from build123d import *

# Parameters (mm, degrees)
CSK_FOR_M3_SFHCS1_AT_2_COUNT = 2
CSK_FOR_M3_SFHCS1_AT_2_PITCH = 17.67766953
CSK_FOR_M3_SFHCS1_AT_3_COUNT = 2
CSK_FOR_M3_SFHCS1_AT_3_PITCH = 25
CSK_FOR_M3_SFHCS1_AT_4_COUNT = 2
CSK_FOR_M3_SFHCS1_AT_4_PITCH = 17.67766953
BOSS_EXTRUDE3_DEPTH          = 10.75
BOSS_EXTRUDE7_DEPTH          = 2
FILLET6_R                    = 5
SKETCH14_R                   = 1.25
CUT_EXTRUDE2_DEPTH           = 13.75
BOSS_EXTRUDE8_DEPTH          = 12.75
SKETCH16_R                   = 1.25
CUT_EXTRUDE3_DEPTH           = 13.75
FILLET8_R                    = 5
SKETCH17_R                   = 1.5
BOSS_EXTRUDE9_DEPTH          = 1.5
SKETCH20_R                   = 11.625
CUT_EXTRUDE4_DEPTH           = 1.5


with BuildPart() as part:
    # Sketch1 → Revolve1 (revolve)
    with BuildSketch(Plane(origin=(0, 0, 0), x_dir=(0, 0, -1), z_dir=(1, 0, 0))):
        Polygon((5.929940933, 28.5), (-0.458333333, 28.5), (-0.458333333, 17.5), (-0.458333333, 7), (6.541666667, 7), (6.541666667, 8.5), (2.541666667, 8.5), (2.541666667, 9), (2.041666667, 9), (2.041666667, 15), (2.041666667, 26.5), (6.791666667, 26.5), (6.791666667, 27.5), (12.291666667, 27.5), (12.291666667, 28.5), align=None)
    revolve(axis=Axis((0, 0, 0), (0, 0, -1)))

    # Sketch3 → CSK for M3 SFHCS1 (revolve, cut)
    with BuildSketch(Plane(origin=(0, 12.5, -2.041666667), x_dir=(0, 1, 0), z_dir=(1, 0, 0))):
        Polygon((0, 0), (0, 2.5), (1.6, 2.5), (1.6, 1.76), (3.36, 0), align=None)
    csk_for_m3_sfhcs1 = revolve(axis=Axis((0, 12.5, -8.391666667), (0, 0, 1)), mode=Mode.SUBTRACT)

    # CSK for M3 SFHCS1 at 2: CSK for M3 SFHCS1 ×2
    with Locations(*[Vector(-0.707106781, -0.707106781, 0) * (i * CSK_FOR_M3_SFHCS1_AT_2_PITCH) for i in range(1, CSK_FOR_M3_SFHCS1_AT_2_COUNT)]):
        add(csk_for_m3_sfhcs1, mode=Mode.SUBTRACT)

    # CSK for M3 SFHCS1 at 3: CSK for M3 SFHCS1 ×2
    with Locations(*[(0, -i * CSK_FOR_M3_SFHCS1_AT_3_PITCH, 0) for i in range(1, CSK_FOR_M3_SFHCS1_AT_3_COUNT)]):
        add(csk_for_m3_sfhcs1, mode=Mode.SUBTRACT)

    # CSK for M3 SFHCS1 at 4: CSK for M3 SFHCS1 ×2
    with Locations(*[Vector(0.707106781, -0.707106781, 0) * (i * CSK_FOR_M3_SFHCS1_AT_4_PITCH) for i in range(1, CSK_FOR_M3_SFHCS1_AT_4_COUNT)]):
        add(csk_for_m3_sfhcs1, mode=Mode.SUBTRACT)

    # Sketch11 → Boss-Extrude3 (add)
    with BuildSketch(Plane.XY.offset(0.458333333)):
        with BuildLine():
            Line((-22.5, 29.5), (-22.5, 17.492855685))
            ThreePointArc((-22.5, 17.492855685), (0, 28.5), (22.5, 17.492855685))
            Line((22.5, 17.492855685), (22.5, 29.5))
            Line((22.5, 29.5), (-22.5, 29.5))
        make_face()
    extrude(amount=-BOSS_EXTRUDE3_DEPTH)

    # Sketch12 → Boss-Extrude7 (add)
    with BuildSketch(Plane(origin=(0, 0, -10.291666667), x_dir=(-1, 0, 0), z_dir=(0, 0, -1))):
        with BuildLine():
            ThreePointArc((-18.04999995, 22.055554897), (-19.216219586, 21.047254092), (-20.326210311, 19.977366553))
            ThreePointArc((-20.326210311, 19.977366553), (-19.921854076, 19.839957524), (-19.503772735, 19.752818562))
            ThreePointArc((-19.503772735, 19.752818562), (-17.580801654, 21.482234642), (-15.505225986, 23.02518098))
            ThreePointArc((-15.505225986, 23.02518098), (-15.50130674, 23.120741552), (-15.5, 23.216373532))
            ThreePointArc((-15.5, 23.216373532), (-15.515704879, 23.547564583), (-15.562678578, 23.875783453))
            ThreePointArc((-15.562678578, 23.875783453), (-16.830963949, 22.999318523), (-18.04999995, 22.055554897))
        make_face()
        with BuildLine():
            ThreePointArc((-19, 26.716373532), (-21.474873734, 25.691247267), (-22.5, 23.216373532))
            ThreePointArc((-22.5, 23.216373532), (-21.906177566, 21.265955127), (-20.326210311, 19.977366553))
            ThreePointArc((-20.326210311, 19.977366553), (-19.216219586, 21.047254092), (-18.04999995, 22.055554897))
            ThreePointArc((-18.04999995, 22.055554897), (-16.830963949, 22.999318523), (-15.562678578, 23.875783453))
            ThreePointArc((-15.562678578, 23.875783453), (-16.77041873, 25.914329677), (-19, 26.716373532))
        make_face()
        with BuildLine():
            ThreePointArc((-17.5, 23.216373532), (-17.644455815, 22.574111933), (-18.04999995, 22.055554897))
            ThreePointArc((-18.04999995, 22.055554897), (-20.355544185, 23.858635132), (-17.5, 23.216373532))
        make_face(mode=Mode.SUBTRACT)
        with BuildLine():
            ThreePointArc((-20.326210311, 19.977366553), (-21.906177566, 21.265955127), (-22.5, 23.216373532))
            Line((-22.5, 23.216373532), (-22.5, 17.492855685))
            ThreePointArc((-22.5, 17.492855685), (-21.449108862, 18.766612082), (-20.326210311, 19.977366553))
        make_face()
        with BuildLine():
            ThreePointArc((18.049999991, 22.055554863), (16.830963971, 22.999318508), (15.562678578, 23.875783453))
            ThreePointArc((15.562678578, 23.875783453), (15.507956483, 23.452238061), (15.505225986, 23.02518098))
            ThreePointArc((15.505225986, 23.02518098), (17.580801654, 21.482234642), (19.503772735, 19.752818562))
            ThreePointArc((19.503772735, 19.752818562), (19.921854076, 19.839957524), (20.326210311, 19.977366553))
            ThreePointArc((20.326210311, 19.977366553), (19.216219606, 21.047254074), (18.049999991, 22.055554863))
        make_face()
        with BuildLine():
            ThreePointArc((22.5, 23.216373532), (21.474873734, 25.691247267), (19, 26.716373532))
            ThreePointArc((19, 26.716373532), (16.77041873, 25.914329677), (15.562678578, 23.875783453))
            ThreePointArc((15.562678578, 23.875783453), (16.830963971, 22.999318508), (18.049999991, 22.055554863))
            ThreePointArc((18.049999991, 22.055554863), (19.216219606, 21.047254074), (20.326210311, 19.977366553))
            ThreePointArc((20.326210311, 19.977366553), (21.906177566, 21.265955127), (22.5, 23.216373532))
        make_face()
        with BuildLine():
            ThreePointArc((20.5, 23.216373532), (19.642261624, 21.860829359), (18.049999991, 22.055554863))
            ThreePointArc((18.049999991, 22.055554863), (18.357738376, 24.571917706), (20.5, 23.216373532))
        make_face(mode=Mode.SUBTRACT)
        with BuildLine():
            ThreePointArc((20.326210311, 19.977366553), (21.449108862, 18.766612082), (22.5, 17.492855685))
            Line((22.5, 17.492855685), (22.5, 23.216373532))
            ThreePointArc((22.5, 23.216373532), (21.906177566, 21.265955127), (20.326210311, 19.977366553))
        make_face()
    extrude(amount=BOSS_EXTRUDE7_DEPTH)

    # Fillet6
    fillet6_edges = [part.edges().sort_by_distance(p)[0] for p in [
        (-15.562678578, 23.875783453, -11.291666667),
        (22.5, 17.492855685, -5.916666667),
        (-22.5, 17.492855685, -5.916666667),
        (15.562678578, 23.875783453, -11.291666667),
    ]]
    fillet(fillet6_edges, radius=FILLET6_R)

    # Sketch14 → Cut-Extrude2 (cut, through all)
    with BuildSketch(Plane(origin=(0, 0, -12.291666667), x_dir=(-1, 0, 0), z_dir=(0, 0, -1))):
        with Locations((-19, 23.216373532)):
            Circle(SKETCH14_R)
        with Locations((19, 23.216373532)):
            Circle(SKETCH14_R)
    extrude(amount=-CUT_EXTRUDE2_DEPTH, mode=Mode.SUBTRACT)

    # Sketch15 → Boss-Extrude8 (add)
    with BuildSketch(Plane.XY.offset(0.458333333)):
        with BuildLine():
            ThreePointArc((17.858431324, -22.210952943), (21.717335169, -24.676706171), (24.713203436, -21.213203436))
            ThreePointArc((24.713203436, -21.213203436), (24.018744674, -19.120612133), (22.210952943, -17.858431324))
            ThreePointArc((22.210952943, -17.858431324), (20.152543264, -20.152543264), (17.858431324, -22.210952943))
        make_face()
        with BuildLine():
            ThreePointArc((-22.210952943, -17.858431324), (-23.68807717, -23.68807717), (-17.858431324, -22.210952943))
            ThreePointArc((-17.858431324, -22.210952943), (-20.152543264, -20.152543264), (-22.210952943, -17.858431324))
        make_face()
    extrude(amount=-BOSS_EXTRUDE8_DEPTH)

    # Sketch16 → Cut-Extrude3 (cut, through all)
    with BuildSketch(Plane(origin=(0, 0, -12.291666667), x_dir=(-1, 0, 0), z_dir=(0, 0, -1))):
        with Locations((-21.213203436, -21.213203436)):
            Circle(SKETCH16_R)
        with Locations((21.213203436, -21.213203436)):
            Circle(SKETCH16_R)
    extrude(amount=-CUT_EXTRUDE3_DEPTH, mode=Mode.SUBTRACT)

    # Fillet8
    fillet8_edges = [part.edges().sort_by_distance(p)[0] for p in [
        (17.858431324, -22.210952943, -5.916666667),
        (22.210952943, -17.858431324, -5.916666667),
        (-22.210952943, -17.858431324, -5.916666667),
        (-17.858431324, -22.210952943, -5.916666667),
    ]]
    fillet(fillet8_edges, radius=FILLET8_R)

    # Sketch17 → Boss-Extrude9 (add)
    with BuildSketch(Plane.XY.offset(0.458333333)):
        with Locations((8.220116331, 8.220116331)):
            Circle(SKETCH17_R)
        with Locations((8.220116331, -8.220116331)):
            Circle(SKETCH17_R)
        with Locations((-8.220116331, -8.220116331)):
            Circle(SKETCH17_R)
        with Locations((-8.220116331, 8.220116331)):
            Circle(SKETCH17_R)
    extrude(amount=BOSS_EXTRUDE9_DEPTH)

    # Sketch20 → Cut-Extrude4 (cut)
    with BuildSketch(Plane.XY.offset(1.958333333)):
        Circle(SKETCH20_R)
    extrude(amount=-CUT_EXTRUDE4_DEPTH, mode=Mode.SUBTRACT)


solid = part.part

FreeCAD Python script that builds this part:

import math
import FreeCAD as App
import Part
import Sketcher
from FreeCAD import Vector
Q = App.Units.Quantity


def edges_at(feature, points):
    """Names of the edges that pass closest to the given points."""
    edges = feature.Shape.Edges
    near = lambda p: min(range(len(edges)), key=lambda i: edges[i].distToShape(Part.Vertex(*p))[0])
    return sorted({f"Edge{near(p) + 1}" for p in points})


def add_polygon(sketch, points):
    """Adds a closed chain of lines whose ends are joined by coincident constraints."""
    first, n = sketch.GeometryCount, len(points)
    for a, b in zip(points, points[1:] + points[:1]):
        sketch.addGeometry(Part.LineSegment(App.Vector(*a, 0), App.Vector(*b, 0)), False)
    for i in range(n):
        sketch.addConstraint(Sketcher.Constraint("Coincident", first + i, 2, first + (i + 1) % n, 1))

doc = App.newDocument("Part")
params = doc.addObject("Spreadsheet::Sheet", "Params")
for row, (alias, value) in enumerate([
    ("sketch1_width", "1 mm"),
    ("sketch1_height", "7 mm"),
    ("sketch1_height2", "4 mm"),
    ("sketch1_width2", "21.5 mm"),
    ("sketch1_width3", "1.5 mm"),
    ("revolution_angle", "360 deg"),
    ("sketch2_width", "1.6 mm"),
    ("sketch2_height", "2.5 mm"),
    ("sketch2_width2", "3.36 mm"),
    ("groove_angle", "360 deg"),
    ("linearpattern_pitch", "17.67767 mm"),
    ("linearpattern2_pitch", "25 mm"),
    ("linearpattern3_pitch", "17.67767 mm"),
    ("sketch3_radius", "28.5 mm"),
    ("sketch3_width", "45 mm"),
    ("pad1_length", "10.75 mm"),
    ("sketch4_radius", "3.5 mm"),
    ("sketch4_radius2", "28.5 mm"),
    ("sketch4_radius3", "1.5 mm"),
    ("pad2_length", "2 mm"),
    ("fillet_radius", "5 mm"),
    ("sketch5_diameter", "2.5 mm"),
    ("sketch6_radius", "3.5 mm"),
    ("sketch6_radius2", "28.5 mm"),
    ("pad3_length", "12.75 mm"),
    ("sketch7_diameter", "2.5 mm"),
    ("fillet2_radius", "5 mm"),
    ("sketch8_diameter", "3 mm"),
    ("pad4_length", "1.5 mm"),
    ("sketch9_diameter", "23.25 mm"),
    ("pocket3_length", "1.5 mm"),
], start=1):
    params.set(f"A{row}", alias)
    params.set(f"B{row}", "=" + value)
    params.setAlias(f"B{row}", alias)

body = doc.addObject("PartDesign::Body", "Body")

# Sketch on YZ plane
sketch1 = doc.addObject("Sketcher::SketchObject", "Sketch")
body.addObject(sketch1)
sketch1.AttachmentSupport = (doc.YZ_Plane, [""])
sketch1.MapMode = "FlatFace"
add_polygon(sketch1, [(28.5, 0.458333), (7, 0.458333), (7, -6.541667), (8.5, -6.541667), (8.5, -2.541667), (9, -2.541667), (9, -2.041667), (26.5, -2.041667), (26.5, -6.791667), (27.5, -6.791667), (27.5, -12.291667), (28.5, -12.291667)])  # lines 0-11
sketch1.addConstraint([
    Sketcher.Constraint("Horizontal", 0),
    Sketcher.Constraint("Vertical", 1),
    Sketcher.Constraint("Horizontal", 2),
    Sketcher.Constraint("Vertical", 3),
    Sketcher.Constraint("Horizontal", 4),
    Sketcher.Constraint("Vertical", 5),
    Sketcher.Constraint("Horizontal", 6),
    Sketcher.Constraint("Vertical", 7),
    Sketcher.Constraint("Horizontal", 8),
    Sketcher.Constraint("Vertical", 9),
    Sketcher.Constraint("Horizontal", 10),
    Sketcher.Constraint("Vertical", 11),
    Sketcher.Constraint("Equal", 8, 10),
    Sketcher.Constraint("Equal", 4, 5),
    Sketcher.Constraint("DistanceX", 8, 1, 8, 2, 1.0),
    Sketcher.Constraint("DistanceY", 1, 2, 1, 1, 7.0),
    Sketcher.Constraint("DistanceY", 3, 1, 3, 2, 4.0),
    Sketcher.Constraint("DistanceX", 0, 2, 0, 1, 21.5),
    Sketcher.Constraint("DistanceX", 2, 1, 2, 2, 1.5),
    Sketcher.Constraint("DistanceX", 4, 1, 4, 2, 0.5),
    Sketcher.Constraint("DistanceY", 9, 2, 9, 1, 5.5),
    Sketcher.Constraint("DistanceX", -1, 1, 0, 2, 7.0),
    Sketcher.Constraint("DistanceY", 7, 2, 7, 1, 4.75),
    Sketcher.Constraint("DistanceY", -1, 1, 0, 2, 0.458333),
])
sketch1.setExpression("Constraints[26]", "Params.sketch1_width")
sketch1.setExpression("Constraints[27]", "Params.sketch1_height")
sketch1.setExpression("Constraints[28]", "Params.sketch1_height2")
sketch1.setExpression("Constraints[29]", "Params.sketch1_width2")
sketch1.setExpression("Constraints[30]", "Params.sketch1_width3")
revolution = doc.addObject("PartDesign::Revolution", "Revolution")
body.addObject(revolution)
revolution.Profile = sketch1
revolution.ReferenceAxis = (sketch1, ["V_Axis"])
revolution.setExpression("Angle", "Params.revolution_angle")

# Sketch on YZ plane
sketch2 = doc.addObject("Sketcher::SketchObject", "Sketch001")
body.addObject(sketch2)
sketch2.AttachmentSupport = (doc.YZ_Plane, [""])
sketch2.MapMode = "FlatFace"
add_polygon(sketch2, [(12.5, 0.458333), (12.5, -2.041667), (15.86, -2.041667), (14.1, -0.281667), (14.1, 0.458333)])  # lines 0-4
sketch2.addGeometry(Part.LineSegment(Vector(12.5, -2.041667, 0), Vector(12.5, 0.458333, 0)), True)  # axis
sketch2.addConstraint([
    Sketcher.Constraint("Vertical", 0),
    Sketcher.Constraint("Horizontal", 1),
    Sketcher.Constraint("Vertical", 3),
    Sketcher.Constraint("Horizontal", 4),
    Sketcher.Constraint("Vertical", 5),
    Sketcher.Constraint("Coincident", 5, 1, 0, 2),
    Sketcher.Constraint("Horizontal", 3, 2, 5, 2),
    Sketcher.Constraint("Angle", 2, Q("135 deg")),
    Sketcher.Constraint("DistanceX", 4, 2, 4, 1, 1.6),
    Sketcher.Constraint("DistanceY", 0, 2, 0, 1, 2.5),
    Sketcher.Constraint("DistanceX", 1, 1, 1, 2, 3.36),
    Sketcher.Constraint("DistanceX", -1, 1, 0, 2, 12.5),
    Sketcher.Constraint("DistanceY", 0, 2, -1, 1, 2.041667),
])
sketch2.setExpression("Constraints[13]", "Params.sketch2_width")
sketch2.setExpression("Constraints[14]", "Params.sketch2_height")
sketch2.setExpression("Constraints[15]", "Params.sketch2_width2")
groove = doc.addObject("PartDesign::Groove", "Groove")
body.addObject(groove)
groove.Profile = sketch2
groove.ReferenceAxis = (sketch2, ["Axis0"])
groove.setExpression("Angle", "Params.groove_angle")
doc.recompute()

datumline = doc.addObject("PartDesign::Line", "DatumLine")
body.addObject(datumline)
datumline.Placement = App.Placement(Vector(0, 0, 0), App.Rotation(Vector(0, 0, 1), Vector(-0.707106781, -0.707106781, 0)))
linearpattern = doc.addObject("PartDesign::LinearPattern", "LinearPattern")
body.addObject(linearpattern)
linearpattern.Originals = [groove]
linearpattern.Direction = (datumline, [""])
linearpattern.Mode = "offset"
linearpattern.setExpression("Offset", "Params.linearpattern_pitch")
linearpattern.Occurrences = 2
body.Tip = linearpattern
doc.recompute()

linearpattern2 = doc.addObject("PartDesign::LinearPattern", "LinearPattern001")
body.addObject(linearpattern2)
linearpattern2.Originals = [groove]
linearpattern2.Direction = (doc.Y_Axis, [""])
linearpattern2.Mode = "offset"
linearpattern2.setExpression("Offset", "Params.linearpattern2_pitch")
linearpattern2.Occurrences = 2
linearpattern2.Reversed = True
body.Tip = linearpattern2
doc.recompute()

datumline2 = doc.addObject("PartDesign::Line", "DatumLine001")
body.addObject(datumline2)
datumline2.Placement = App.Placement(Vector(0, 0, 0), App.Rotation(Vector(0, 0, 1), Vector(0.707106781, -0.707106781, 0)))
linearpattern3 = doc.addObject("PartDesign::LinearPattern", "LinearPattern002")
body.addObject(linearpattern3)
linearpattern3.Originals = [groove]
linearpattern3.Direction = (datumline2, [""])
linearpattern3.Mode = "offset"
linearpattern3.setExpression("Offset", "Params.linearpattern3_pitch")
linearpattern3.Occurrences = 2
body.Tip = linearpattern3

# Sketch on XY plane
sketch3 = doc.addObject("Sketcher::SketchObject", "Sketch002")
body.addObject(sketch3)
sketch3.AttachmentSupport = (doc.XY_Plane, [""])
sketch3.MapMode = "FlatFace"
sketch3.AttachmentOffset = App.Placement(Vector(0, 0, 0.458333), App.Rotation())
sketch3.addGeometry([
    Part.LineSegment(Vector(-22.5, 29.5, 0), Vector(-22.5, 17.492856, 0)),
    Part.ArcOfCircle(Part.Circle(Vector(0, 0, 0), Vector(0, 0, 1), 28.5), math.radians(37.863646), math.radians(142.136354)),
    Part.LineSegment(Vector(22.5, 17.492856, 0), Vector(22.5, 29.5, 0)),
    Part.LineSegment(Vector(22.5, 29.5, 0), Vector(-22.5, 29.5, 0)),
], False)
sketch3.addConstraint([
    Sketcher.Constraint("Coincident", 0, 2, 1, 2),
    Sketcher.Constraint("Coincident", 1, 1, 2, 1),
    Sketcher.Constraint("Coincident", 2, 2, 3, 1),
    Sketcher.Constraint("Coincident", 3, 2, 0, 1),
    Sketcher.Constraint("Vertical", 0),
    Sketcher.Constraint("Vertical", 2),
    Sketcher.Constraint("Horizontal", 3),
    Sketcher.Constraint("Coincident", 1, 3, -1, 1),
    Sketcher.Constraint("Horizontal", 0, 2, 1, 1),
    Sketcher.Constraint("Radius", 1, 28.5),
    Sketcher.Constraint("DistanceX", 3, 2, 3, 1, 45.0),
    Sketcher.Constraint("DistanceY", -1, 1, 2, 2, 29.5),
])
sketch3.setExpression("Constraints[9]", "Params.sketch3_radius")
sketch3.setExpression("Constraints[10]", "Params.sketch3_width")
pad1 = doc.addObject("PartDesign::Pad", "Pad")
body.addObject(pad1)
pad1.Profile = sketch3
pad1.setExpression("Length", "Params.pad1_length")
pad1.Reversed = True

# Sketch on XY plane
sketch4 = doc.addObject("Sketcher::SketchObject", "Sketch003")
body.addObject(sketch4)
sketch4.AttachmentSupport = (doc.XY_Plane, [""])
sketch4.MapMode = "FlatFace"
sketch4.AttachmentOffset = App.Placement(Vector(0, 0, -10.291667), App.Rotation())
sketch4.addGeometry([
    Part.ArcOfCircle(Part.Circle(Vector(19, 23.216374, 0), Vector(0, 0, 1), 3.5), math.radians(-81.724384), math.radians(-67.73337)),  # 0
    Part.ArcOfCircle(Part.Circle(Vector(0, 0, 0), Vector(0, 0, 1), 27.759161), math.radians(45.363483), math.radians(56.043557)),  # 1
    Part.ArcOfCircle(Part.Circle(Vector(18.999999, 23.216374, 0), Vector(0, 0, 1), 3.499999), math.radians(179.999999), math.radians(183.131424)),  # 2
    Part.ArcOfCircle(Part.Circle(Vector(19, 23.216374, 0), Vector(0, 0, 1), 3.5), math.radians(169.14041), math.radians(180)),  # 3
    Part.ArcOfCircle(Part.Circle(Vector(19, 23.216374, 0), Vector(0, 0, 1), 3.5), math.radians(90), math.radians(169.14041)),  # 4
    Part.ArcOfCircle(Part.Circle(Vector(19, 23.216374, 0), Vector(0, 0, 1), 3.5), math.radians(0), math.radians(90)),  # 5
    Part.LineSegment(Vector(22.5, 23.216374, 0), Vector(22.5, 17.492856, 0)),  # 6
    Part.ArcOfCircle(Part.Circle(Vector(0, 0, 0), Vector(0, 0, 1), 28.5), math.radians(37.863646), math.radians(44.504094)),  # 7
    Part.ArcOfCircle(Part.Circle(Vector(19, 23.216374, 0), Vector(0, 0, 1), 1.5), math.radians(-129.296483), math.radians(180)),  # 8
    Part.ArcOfCircle(Part.Circle(Vector(19, 23.216374, 0), Vector(0, 0, 1), 1.5), math.radians(-180), math.radians(-129.296483)),  # 9
    Part.ArcOfCircle(Part.Circle(Vector(-19, 23.216374, 0), Vector(0, 0, 1), 3.5), math.radians(-3.131423), math.radians(10.85959)),  # 10
    Part.ArcOfCircle(Part.Circle(Vector(0, 0, 0), Vector(0, 0, 1), 27.759161), math.radians(123.956443), math.radians(134.636517)),  # 11
    Part.ArcOfCircle(Part.Circle(Vector(-19, 23.216374, 0), Vector(0, 0, 1), 3.5), math.radians(-112.26663), math.radians(-98.275616)),  # 12
    Part.ArcOfCircle(Part.Circle(Vector(0, 0, 0), Vector(0, 0, 1), 28.5), math.radians(135.495906), math.radians(142.136354)),  # 13
    Part.LineSegment(Vector(-22.5, 17.492856, 0), Vector(-22.5, 23.216374, 0)),  # 14
    Part.ArcOfCircle(Part.Circle(Vector(-19, 23.216374, 0), Vector(0, 0, 1), 3.5), math.radians(90), math.radians(180)),  # 15
    Part.ArcOfCircle(Part.Circle(Vector(-19, 23.216374, 0), Vector(0, 0, 1), 3.5), math.radians(10.85959), math.radians(90)),  # 16
    Part.ArcOfCircle(Part.Circle(Vector(-19, 23.216374, 0), Vector(0, 0, 1), 1.5), math.radians(-50.703519), math.radians(180)),  # 17
    Part.ArcOfCircle(Part.Circle(Vector(-19, 23.216374, 0), Vector(0, 0, 1), 1.5), math.radians(-180), math.radians(-50.703519)),  # 18
], False)
sketch4.addConstraint([
    Sketcher.Constraint("Coincident", 0, 1, 1, 1),
    Sketcher.Constraint("Coincident", 1, 2, 2, 2),
    Sketcher.Constraint("Tangent", 2, 1, 3, 2),
    Sketcher.Constraint("Tangent", 3, 1, 4, 2),
    Sketcher.Constraint("Tangent", 4, 1, 5, 2),
    Sketcher.Constraint("Tangent", 5, 1, 6, 1),
    Sketcher.Constraint("Coincident", 6, 2, 7, 1),
    Sketcher.Constraint("Coincident", 7, 2, 0, 2),
    Sketcher.Constraint("Tangent", 8, 1, 9, 2),
    Sketcher.Constraint("Coincident", 9, 1, 8, 2),
    Sketcher.Constraint("Coincident", 10, 1, 11, 1),
    Sketcher.Constraint("Coincident", 11, 2, 12, 2),
    Sketcher.Constraint("Coincident", 12, 1, 13, 1),
    Sketcher.Constraint("Coincident", 13, 2, 14, 1),
    Sketcher.Constraint("Tangent", 14, 2, 15, 2),
    Sketcher.Constraint("Tangent", 15, 1, 16, 2),
    Sketcher.Constraint("Tangent", 16, 1, 10, 2),
    Sketcher.Constraint("Tangent", 17, 1, 18, 2),
    Sketcher.Constraint("Coincident", 18, 1, 17, 2),
    Sketcher.Constraint("Vertical", 6),
    Sketcher.Constraint("Vertical", 14),
    Sketcher.Constraint("Coincident", 1, 3, -1, 1),
    Sketcher.Constraint("Coincident", 7, 3, -1, 1),
    Sketcher.Constraint("Coincident", 11, 3, -1, 1),
    Sketcher.Constraint("Coincident", 13, 3, -1, 1),
    Sketcher.Constraint("Coincident", 2, 3, 0, 3),
    Sketcher.Constraint("Coincident", 4, 3, 0, 3),
    Sketcher.Constraint("Coincident", 8, 3, 0, 3),
    Sketcher.Constraint("Coincident", 12, 3, 10, 3),
    Sketcher.Constraint("Coincident", 15, 3, 10, 3),
    Sketcher.Constraint("Coincident", 17, 3, 10, 3),
    Sketcher.Constraint("Equal", 0, 2),
    Sketcher.Constraint("Equal", 4, 5),
    Sketcher.Constraint("Equal", 5, 10),
    Sketcher.Constraint("Equal", 1, 11),
    Sketcher.Constraint("Equal", 10, 12),
    Sketcher.Constraint("Equal", 7, 13),
    Sketcher.Constraint("Equal", 9, 17),
    Sketcher.Constraint("Symmetric", 0, 3, 10, 3, -2),
    Sketcher.Constraint("Horizontal", 18, 3, 2, 1),
    Sketcher.Constraint("Horizontal", 5, 1, 9, 1),
    Sketcher.Constraint("Horizontal", 3, 1, 16, 1),
    Sketcher.Constraint("Horizontal", 8, 1, 17, 1),
    Sketcher.Constraint("Horizontal", 14, 2, 18, 1),
    Sketcher.Constraint("Vertical", 9, 3, 4, 1),
    Sketcher.Constraint("Vertical", 18, 3, 15, 1),
    Sketcher.Constraint("Radius", 0, 3.5),
    Sketcher.Constraint("Radius", 7, 28.5),
    Sketcher.Constraint("Radius", 8, 1.5),
    Sketcher.Constraint("DistanceX", -1, 1, 0, 3, 19.0),
    Sketcher.Constraint("DistanceX", -1, 1, 8, 1, 18.05),
    Sketcher.Constraint("Radius", 1, 27.759161),
    Sketcher.Constraint("DistanceY", 6, 2, 6, 1, 5.723518),
    Sketcher.Constraint("DistanceX", -1, 1, 3, 1, 15.562679),
])
sketch4.setExpression("Constraints[46]", "Params.sketch4_radius")
sketch4.setExpression("Constraints[47]", "Params.sketch4_radius2")
sketch4.setExpression("Constraints[48]", "Params.sketch4_radius3")
pad2 = doc.addObject("PartDesign::Pad", "Pad001")
body.addObject(pad2)
pad2.Profile = sketch4
pad2.setExpression("Length", "Params.pad2_length")
pad2.Reversed = True
doc.recompute()

fillet = doc.addObject("PartDesign::Fillet", "Fillet")
body.addObject(fillet)
fillet.Base = (pad2, edges_at(pad2, [
    (-15.563, 23.876, -11.292),
    (22.5, 17.493, -5.917),
    (-22.5, 17.493, -5.917),
    (15.563, 23.876, -11.292),
]))
fillet.setExpression("Radius", "Params.fillet_radius")

# Sketch on XY plane
sketch5 = doc.addObject("Sketcher::SketchObject", "Sketch004")
body.addObject(sketch5)
sketch5.AttachmentSupport = (doc.XY_Plane, [""])
sketch5.MapMode = "FlatFace"
sketch5.AttachmentOffset = App.Placement(Vector(0, 0, -12.291667), App.Rotation())
sketch5.addGeometry([
    Part.Circle(Vector(19, 23.216374, 0), Vector(0, 0, 1), 1.25),
    Part.Circle(Vector(-19, 23.216374, 0), Vector(0, 0, 1), 1.25),
], False)
sketch5.addConstraint([
    Sketcher.Constraint("Equal", 0, 1),
    Sketcher.Constraint("Symmetric", 0, 3, 1, 3, -2),
    Sketcher.Constraint("Diameter", 0, 2.5),
    Sketcher.Constraint("DistanceX", -1, 1, 0, 3, 19.0),
    Sketcher.Constraint("DistanceY", -1, 1, 0, 3, 23.216374),
])
sketch5.setExpression("Constraints[2]", "Params.sketch5_diameter")
pocket1 = doc.addObject("PartDesign::Pocket", "Pocket")
body.addObject(pocket1)
pocket1.Profile = sketch5
pocket1.Type = "ThroughAll"
pocket1.Reversed = True

# Sketch on XY plane
sketch6 = doc.addObject("Sketcher::SketchObject", "Sketch005")
body.addObject(sketch6)
sketch6.AttachmentSupport = (doc.XY_Plane, [""])
sketch6.MapMode = "FlatFace"
sketch6.AttachmentOffset = App.Placement(Vector(0, 0, 0.458333), App.Rotation())
sketch6.addGeometry([
    Part.ArcOfCircle(Part.Circle(Vector(21.213203, -21.213203, 0), Vector(0, 0, 1), 3.5), math.radians(-163.43689), math.radians(0)),  # 0
    Part.ArcOfCircle(Part.Circle(Vector(21.213203, -21.213203, 0), Vector(0, 0, 1), 3.5), math.radians(0), math.radians(73.43689)),  # 1
    Part.ArcOfCircle(Part.Circle(Vector(0, 0, 0), Vector(0, 0, 1), 28.5), math.radians(-51.199426), math.radians(-38.800574)),  # 2
    Part.ArcOfCircle(Part.Circle(Vector(-21.213203, -21.213203, 0), Vector(0, 0, 1), 3.5), math.radians(106.56311), math.radians(343.43689)),  # 3
    Part.ArcOfCircle(Part.Circle(Vector(0, 0, 0), Vector(0, 0, 1), 28.5), math.radians(-141.199426), math.radians(-128.800574)),  # 4
], False)
sketch6.addConstraint([
    Sketcher.Constraint("Tangent", 0, 2, 1, 1),
    Sketcher.Constraint("Coincident", 1, 2, 2, 2),
    Sketcher.Constraint("Coincident", 2, 1, 0, 1),
    Sketcher.Constraint("Coincident", 3, 1, 4, 1),
    Sketcher.Constraint("Coincident", 4, 2, 3, 2),
    Sketcher.Constraint("Coincident", 2, 3, -1, 1),
    Sketcher.Constraint("Coincident", 4, 3, -1, 1),
    Sketcher.Constraint("Equal", 0, 1),
    Sketcher.Constraint("Equal", 1, 3),
    Sketcher.Constraint("Equal", 2, 4),
    Sketcher.Constraint("Symmetric", 0, 3, 3, 3, -2),
    Sketcher.Constraint("Horizontal", 3, 3, 0, 2),
    Sketcher.Constraint("Radius", 0, 3.5),
    Sketcher.Constraint("Radius", 2, 28.5),
    Sketcher.Constraint("DistanceY", 1, 2, -1, 1, 17.858431),
    Sketcher.Constraint("DistanceX", -1, 1, 2, 1, 17.858431),
])
sketch6.setExpression("Constraints[12]", "Params.sketch6_radius")
sketch6.setExpression("Constraints[13]", "Params.sketch6_radius2")
pad3 = doc.addObject("PartDesign::Pad", "Pad002")
body.addObject(pad3)
pad3.Profile = sketch6
pad3.setExpression("Length", "Params.pad3_length")
pad3.Reversed = True

# Sketch on XY plane
sketch7 = doc.addObject("Sketcher::SketchObject", "Sketch006")
body.addObject(sketch7)
sketch7.AttachmentSupport = (doc.XY_Plane, [""])
sketch7.MapMode = "FlatFace"
sketch7.AttachmentOffset = App.Placement(Vector(0, 0, -12.291667), App.Rotation())
sketch7.addGeometry([
    Part.Circle(Vector(21.213203, -21.213203, 0), Vector(0, 0, 1), 1.25),
    Part.Circle(Vector(-21.213203, -21.213203, 0), Vector(0, 0, 1), 1.25),
], False)
sketch7.addConstraint([
    Sketcher.Constraint("Equal", 0, 1),
    Sketcher.Constraint("Symmetric", 0, 3, 1, 3, -2),
    Sketcher.Constraint("Diameter", 0, 2.5),
    Sketcher.Constraint("DistanceX", -1, 1, 0, 3, 21.213203),
    Sketcher.Constraint("DistanceY", 0, 3, -1, 1, 21.213203),
])
sketch7.setExpression("Constraints[2]", "Params.sketch7_diameter")
pocket2 = doc.addObject("PartDesign::Pocket", "Pocket001")
body.addObject(pocket2)
pocket2.Profile = sketch7
pocket2.Type = "ThroughAll"
pocket2.Reversed = True
doc.recompute()

fillet2 = doc.addObject("PartDesign::Fillet", "Fillet001")
body.addObject(fillet2)
fillet2.Base = (pocket2, edges_at(pocket2, [
    (17.858, -22.211, -5.917),
    (22.211, -17.858, -5.917),
    (-22.211, -17.858, -5.917),
    (-17.858, -22.211, -5.917),
]))
fillet2.setExpression("Radius", "Params.fillet2_radius")

# Sketch on XY plane
sketch8 = doc.addObject("Sketcher::SketchObject", "Sketch007")
body.addObject(sketch8)
sketch8.AttachmentSupport = (doc.XY_Plane, [""])
sketch8.MapMode = "FlatFace"
sketch8.AttachmentOffset = App.Placement(Vector(0, 0, 0.458333), App.Rotation())
sketch8.addGeometry([
    Part.Circle(Vector(8.220116, 8.220116, 0), Vector(0, 0, 1), 1.5),
    Part.Circle(Vector(8.220116, -8.220116, 0), Vector(0, 0, 1), 1.5),
    Part.Circle(Vector(-8.220116, -8.220116, 0), Vector(0, 0, 1), 1.5),
    Part.Circle(Vector(-8.220116, 8.220116, 0), Vector(0, 0, 1), 1.5),
], False)
sketch8.addConstraint([
    Sketcher.Constraint("Equal", 0, 1),
    Sketcher.Constraint("Equal", 1, 2),
    Sketcher.Constraint("Equal", 2, 3),
    Sketcher.Constraint("Symmetric", 0, 3, 2, 3, -1, 1),
    Sketcher.Constraint("Symmetric", 1, 3, 3, 3, -1, 1),
    Sketcher.Constraint("Symmetric", 1, 3, 2, 3, -2),
    Sketcher.Constraint("Diameter", 0, 3.0),
    Sketcher.Constraint("DistanceX", -1, 1, 0, 3, 8.220116),
    Sketcher.Constraint("DistanceY", -1, 1, 0, 3, 8.220116),
])
sketch8.setExpression("Constraints[6]", "Params.sketch8_diameter")
pad4 = doc.addObject("PartDesign::Pad", "Pad003")
body.addObject(pad4)
pad4.Profile = sketch8
pad4.setExpression("Length", "Params.pad4_length")

# Sketch on XY plane
sketch9 = doc.addObject("Sketcher::SketchObject", "Sketch008")
body.addObject(sketch9)
sketch9.AttachmentSupport = (doc.XY_Plane, [""])
sketch9.MapMode = "FlatFace"
sketch9.AttachmentOffset = App.Placement(Vector(0, 0, 1.958333), App.Rotation())
sketch9.addGeometry(Part.Circle(Vector(0, 0, 0), Vector(0, 0, 1), 11.625), False)
sketch9.addConstraint([
    Sketcher.Constraint("Coincident", 0, 3, -1, 1),
    Sketcher.Constraint("Diameter", 0, 23.25),
])
sketch9.setExpression("Constraints[1]", "Params.sketch9_diameter")
pocket3 = doc.addObject("PartDesign::Pocket", "Pocket002")
body.addObject(pocket3)
pocket3.Profile = sketch9
pocket3.setExpression("Length", "Params.pocket3_length")

doc.recompute()
